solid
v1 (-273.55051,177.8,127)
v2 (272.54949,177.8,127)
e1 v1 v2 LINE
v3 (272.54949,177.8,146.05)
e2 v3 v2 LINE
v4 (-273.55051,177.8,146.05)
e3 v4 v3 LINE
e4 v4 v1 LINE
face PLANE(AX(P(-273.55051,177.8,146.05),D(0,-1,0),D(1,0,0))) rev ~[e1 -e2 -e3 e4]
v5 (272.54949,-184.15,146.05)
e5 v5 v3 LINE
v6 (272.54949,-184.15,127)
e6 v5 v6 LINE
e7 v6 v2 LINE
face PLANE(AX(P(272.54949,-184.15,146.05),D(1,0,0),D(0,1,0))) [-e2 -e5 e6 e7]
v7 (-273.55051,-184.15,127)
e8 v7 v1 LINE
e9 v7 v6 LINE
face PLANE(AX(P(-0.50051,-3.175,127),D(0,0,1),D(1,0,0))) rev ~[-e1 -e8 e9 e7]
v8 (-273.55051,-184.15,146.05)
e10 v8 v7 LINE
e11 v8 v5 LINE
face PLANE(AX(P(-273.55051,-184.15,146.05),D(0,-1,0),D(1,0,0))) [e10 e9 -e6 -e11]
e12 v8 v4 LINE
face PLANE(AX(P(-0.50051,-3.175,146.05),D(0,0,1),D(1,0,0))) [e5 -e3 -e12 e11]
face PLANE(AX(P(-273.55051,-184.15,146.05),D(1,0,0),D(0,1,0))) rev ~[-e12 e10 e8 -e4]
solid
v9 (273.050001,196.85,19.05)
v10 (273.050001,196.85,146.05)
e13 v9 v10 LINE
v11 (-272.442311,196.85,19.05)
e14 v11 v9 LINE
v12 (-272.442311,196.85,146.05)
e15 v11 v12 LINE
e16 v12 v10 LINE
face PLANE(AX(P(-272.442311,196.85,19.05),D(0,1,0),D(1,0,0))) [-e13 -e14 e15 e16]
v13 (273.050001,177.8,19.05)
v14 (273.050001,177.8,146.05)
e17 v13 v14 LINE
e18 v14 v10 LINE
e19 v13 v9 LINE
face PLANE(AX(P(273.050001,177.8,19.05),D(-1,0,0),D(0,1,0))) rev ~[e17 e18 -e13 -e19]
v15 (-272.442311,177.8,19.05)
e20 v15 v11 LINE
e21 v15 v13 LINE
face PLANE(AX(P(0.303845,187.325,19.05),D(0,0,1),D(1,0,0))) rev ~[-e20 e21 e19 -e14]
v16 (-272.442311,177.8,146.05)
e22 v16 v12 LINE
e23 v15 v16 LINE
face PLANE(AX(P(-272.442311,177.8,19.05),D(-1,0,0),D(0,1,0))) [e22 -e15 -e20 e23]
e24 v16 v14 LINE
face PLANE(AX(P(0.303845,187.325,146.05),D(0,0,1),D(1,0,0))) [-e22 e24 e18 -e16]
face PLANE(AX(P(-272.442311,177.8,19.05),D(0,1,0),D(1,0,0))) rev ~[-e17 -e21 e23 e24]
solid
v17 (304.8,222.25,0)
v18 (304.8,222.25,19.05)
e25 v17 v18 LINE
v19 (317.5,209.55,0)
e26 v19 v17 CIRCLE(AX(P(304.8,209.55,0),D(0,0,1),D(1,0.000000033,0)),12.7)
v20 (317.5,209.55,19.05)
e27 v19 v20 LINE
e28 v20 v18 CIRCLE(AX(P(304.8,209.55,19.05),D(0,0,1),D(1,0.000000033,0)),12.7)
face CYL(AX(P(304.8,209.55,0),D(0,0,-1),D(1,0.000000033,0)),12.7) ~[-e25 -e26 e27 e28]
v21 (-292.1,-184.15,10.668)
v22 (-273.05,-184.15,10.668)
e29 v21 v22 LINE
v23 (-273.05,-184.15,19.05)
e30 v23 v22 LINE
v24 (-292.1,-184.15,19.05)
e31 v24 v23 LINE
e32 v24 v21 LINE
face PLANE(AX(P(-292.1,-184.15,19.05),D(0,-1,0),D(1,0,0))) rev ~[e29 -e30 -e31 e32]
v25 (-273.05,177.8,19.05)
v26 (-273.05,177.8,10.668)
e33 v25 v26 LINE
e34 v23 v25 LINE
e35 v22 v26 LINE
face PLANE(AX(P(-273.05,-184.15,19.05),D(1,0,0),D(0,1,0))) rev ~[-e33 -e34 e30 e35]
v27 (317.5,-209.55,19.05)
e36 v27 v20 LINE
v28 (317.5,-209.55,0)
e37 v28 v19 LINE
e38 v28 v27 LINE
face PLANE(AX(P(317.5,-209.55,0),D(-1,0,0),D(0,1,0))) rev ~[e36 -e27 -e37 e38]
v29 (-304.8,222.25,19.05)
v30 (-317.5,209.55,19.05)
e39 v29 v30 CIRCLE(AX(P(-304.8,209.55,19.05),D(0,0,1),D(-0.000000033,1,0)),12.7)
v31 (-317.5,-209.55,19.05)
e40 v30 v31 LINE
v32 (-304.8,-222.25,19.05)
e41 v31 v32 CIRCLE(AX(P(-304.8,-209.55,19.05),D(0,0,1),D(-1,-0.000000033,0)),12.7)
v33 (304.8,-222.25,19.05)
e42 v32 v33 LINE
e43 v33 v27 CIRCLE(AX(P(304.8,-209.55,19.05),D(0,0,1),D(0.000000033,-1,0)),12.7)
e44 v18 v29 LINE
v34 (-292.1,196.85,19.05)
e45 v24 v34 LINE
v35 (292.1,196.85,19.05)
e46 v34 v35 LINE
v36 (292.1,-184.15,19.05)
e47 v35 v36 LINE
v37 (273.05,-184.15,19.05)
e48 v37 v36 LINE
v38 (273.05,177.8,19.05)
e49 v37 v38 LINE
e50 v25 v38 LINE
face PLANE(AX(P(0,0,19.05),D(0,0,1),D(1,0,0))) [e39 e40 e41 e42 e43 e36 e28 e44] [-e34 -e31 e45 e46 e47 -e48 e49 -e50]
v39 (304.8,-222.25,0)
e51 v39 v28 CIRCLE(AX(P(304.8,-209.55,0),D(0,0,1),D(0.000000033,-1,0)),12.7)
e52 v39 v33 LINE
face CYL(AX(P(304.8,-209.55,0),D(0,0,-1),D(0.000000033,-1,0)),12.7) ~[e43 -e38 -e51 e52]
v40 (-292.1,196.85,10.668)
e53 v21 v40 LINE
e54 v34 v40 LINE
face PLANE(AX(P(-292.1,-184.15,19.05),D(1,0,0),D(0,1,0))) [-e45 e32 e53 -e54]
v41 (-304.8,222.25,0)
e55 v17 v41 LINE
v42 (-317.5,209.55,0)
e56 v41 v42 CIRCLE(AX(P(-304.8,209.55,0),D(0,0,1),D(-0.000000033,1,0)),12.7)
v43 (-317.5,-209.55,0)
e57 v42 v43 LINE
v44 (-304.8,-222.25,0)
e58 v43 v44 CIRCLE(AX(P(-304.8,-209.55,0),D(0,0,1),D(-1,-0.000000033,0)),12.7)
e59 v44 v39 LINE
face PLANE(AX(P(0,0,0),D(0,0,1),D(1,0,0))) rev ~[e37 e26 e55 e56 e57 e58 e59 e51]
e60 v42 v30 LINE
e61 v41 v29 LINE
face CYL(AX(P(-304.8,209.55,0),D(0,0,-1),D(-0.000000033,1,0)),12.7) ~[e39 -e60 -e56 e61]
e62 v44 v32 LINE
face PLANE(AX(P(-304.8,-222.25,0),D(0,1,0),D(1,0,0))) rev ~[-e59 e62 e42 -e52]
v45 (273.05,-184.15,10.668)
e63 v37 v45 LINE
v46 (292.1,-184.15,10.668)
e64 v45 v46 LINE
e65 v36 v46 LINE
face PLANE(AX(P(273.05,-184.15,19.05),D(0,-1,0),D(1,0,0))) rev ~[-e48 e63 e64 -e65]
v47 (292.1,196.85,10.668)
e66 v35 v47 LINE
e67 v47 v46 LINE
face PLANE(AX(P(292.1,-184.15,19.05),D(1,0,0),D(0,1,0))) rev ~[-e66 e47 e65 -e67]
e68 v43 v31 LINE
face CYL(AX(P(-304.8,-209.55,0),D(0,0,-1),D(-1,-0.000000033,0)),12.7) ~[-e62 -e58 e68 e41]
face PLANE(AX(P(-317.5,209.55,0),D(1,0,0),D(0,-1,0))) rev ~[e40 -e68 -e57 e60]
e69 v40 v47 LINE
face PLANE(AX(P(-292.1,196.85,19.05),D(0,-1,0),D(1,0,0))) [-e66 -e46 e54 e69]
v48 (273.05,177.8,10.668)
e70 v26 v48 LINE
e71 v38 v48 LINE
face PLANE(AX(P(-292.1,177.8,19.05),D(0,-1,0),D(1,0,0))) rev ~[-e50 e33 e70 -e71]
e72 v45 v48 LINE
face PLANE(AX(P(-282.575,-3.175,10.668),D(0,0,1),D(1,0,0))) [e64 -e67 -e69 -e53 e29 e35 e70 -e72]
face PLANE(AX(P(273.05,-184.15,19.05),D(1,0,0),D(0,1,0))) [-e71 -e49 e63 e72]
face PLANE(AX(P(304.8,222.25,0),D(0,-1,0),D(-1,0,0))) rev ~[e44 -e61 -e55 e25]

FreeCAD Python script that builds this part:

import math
import FreeCAD as App
import Part
import Sketcher

V = App.Vector
Q = App.Units.Quantity

doc = App.newDocument("Part")
body = doc.addObject("PartDesign::Body", "Body")

# Sketch on XY plane
sketch1 = body.newObject("Sketcher::SketchObject", "Sketch")
sketch1.AttachmentSupport = (doc.getObject("XY_Plane"), [""])
sketch1.MapMode = "FlatFace"
sketch1.addGeometry([
    Part.LineSegment(V(305, 222, 0), V(-305, 222, 0)),  # 0
    Part.ArcOfCircle(Part.Circle(V(-305, 210, 0), V(0, 0, 1), 13), math.radians(90), math.radians(180)),  # 1
    Part.LineSegment(V(-318, 210, 0), V(-318, -210, 0)),  # 2
    Part.ArcOfCircle(Part.Circle(V(-305, -210, 0), V(0, 0, 1), 13), math.radians(-180), math.radians(-90)),  # 3
    Part.LineSegment(V(-305, -222, 0), V(305, -222, 0)),  # 4
    Part.ArcOfCircle(Part.Circle(V(305, -210, 0), V(0, 0, 1), 13), math.radians(-90), math.radians(0)),  # 5
    Part.LineSegment(V(318, -210, 0), V(318, 210, 0)),  # 6
    Part.ArcOfCircle(Part.Circle(V(305, 210, 0), V(0, 0, 1), 13), math.radians(0), math.radians(90)),  # 7
], False)
sketch1.addConstraint([
    Sketcher.Constraint("Tangent", 0, 2, 1, 1),
    Sketcher.Constraint("Tangent", 1, 2, 2, 1),
    Sketcher.Constraint("Tangent", 2, 2, 3, 1),
    Sketcher.Constraint("Tangent", 3, 2, 4, 1),
    Sketcher.Constraint("Tangent", 4, 2, 5, 1),
    Sketcher.Constraint("Tangent", 5, 2, 6, 1),
    Sketcher.Constraint("Tangent", 6, 2, 7, 1),
    Sketcher.Constraint("Tangent", 7, 2, 0, 1),
    Sketcher.Constraint("Horizontal", 0),
    Sketcher.Constraint("Vertical", 2),
    Sketcher.Constraint("Horizontal", 4),
    Sketcher.Constraint("Vertical", 6),
    Sketcher.Constraint("Equal", 1, 3),
    Sketcher.Constraint("Equal", 3, 5),
    Sketcher.Constraint("Equal", 5, 7),
    Sketcher.Constraint("Symmetric", 1, 3, 5, 3, -1, 1),
    Sketcher.Constraint("Radius", 1, Q("0.5 in")),
    Sketcher.Constraint("DistanceX", 0, 2, 0, 1, Q("24 in")),
    Sketcher.Constraint("DistanceY", 2, 2, 2, 1, Q("16.5 in")),
])
pad1 = body.newObject("PartDesign::Pad", "Pad")
pad1.Profile = sketch1
pad1.Length = Q("0.75 in")

# Sketch on XY plane
sketch2 = body.newObject("Sketcher::SketchObject", "Sketch001")
sketch2.AttachmentSupport = (doc.getObject("XY_Plane"), [""])
sketch2.MapMode = "FlatFace"
sketch2.AttachmentOffset = App.Placement(V(0, 0, 0.75 * 25.4), App.Rotation())
sketch2.addGeometry([
    Part.LineSegment(V(-292, 197, 0), V(-292, 178, 0)),
    Part.LineSegment(V(-292, 178, 0), V(292, 178, 0)),
    Part.LineSegment(V(292, 178, 0), V(292, 197, 0)),
    Part.LineSegment(V(292, 197, 0), V(-292, 197, 0)),
], False)
sketch2.addConstraint([
    Sketcher.Constraint("Coincident", 0, 2, 1, 1),
    Sketcher.Constraint("Coincident", 1, 2, 2, 1),
    Sketcher.Constraint("Coincident", 2, 2, 3, 1),
    Sketcher.Constraint("Coincident", 3, 2, 0, 1),
    Sketcher.Constraint("Vertical", 0),
    Sketcher.Constraint("Horizontal", 1),
    Sketcher.Constraint("Vertical", 2),
    Sketcher.Constraint("Horizontal", 3),
    Sketcher.Constraint("DistanceX", 1, 1, 1, 2, Q("23 in")),
    Sketcher.Constraint("DistanceY", -1, 1, 0, 2, Q("7 in")),
    Sketcher.Constraint("DistanceY", 0, 2, 0, 1, Q("0.75 in")),
    Sketcher.Constraint("DistanceX", 0, 2, -1, 1, Q("11.5 in")),
])
pocket1 = body.newObject("PartDesign::Pocket", "Pocket")
pocket1.Profile = sketch2
pocket1.Length = Q("0.33 in")

# Sketch on XY plane
sketch3 = body.newObject("Sketcher::SketchObject", "Sketch002")
sketch3.AttachmentSupport = (doc.getObject("XY_Plane"), [""])
sketch3.MapMode = "FlatFace"
sketch3.AttachmentOffset = App.Placement(V(0, 0, 0.75 * 25.4), App.Rotation())
sketch3.addGeometry([
    Part.LineSegment(V(-292, 178, 0), V(-292, -184, 0)),
    Part.LineSegment(V(-292, -184, 0), V(-273, -184, 0)),
    Part.LineSegment(V(-273, -184, 0), V(-273, 178, 0)),
    Part.LineSegment(V(-273, 178, 0), V(-292, 178, 0)),
], False)
sketch3.addConstraint([
    Sketcher.Constraint("Coincident", 0, 2, 1, 1),
    Sketcher.Constraint("Coincident", 1, 2, 2, 1),
    Sketcher.Constraint("Coincident", 2, 2, 3, 1),
    Sketcher.Constraint("Coincident", 3, 2, 0, 1),
    Sketcher.Constraint("Vertical", 0),
    Sketcher.Constraint("Horizontal", 1),
    Sketcher.Constraint("Vertical", 2),
    Sketcher.Constraint("Horizontal", 3),
    Sketcher.Constraint("DistanceY", -1, 1, 2, 2, Q("7 in")),
    Sketcher.Constraint("DistanceX", 1, 1, 1, 2, Q("0.75 in")),
    Sketcher.Constraint("DistanceY", 0, 2, 0, 1, Q("14.25 in")),
    Sketcher.Constraint("DistanceX", 0, 2, -1, 1, Q("11.5 in")),
])
pocket2 = body.newObject("PartDesign::Pocket", "Pocket001")
pocket2.Profile = sketch3
pocket2.Length = Q("0.33 in")

# Sketch on XY plane
sketch4 = body.newObject("Sketcher::SketchObject", "Sketch003")
sketch4.AttachmentSupport = (doc.getObject("XY_Plane"), [""])
sketch4.MapMode = "FlatFace"
sketch4.AttachmentOffset = App.Placement(V(0, 0, 0.75 * 25.4), App.Rotation())
sketch4.addGeometry([
    Part.LineSegment(V(273, 178, 0), V(273, -184, 0)),
    Part.LineSegment(V(273, -184, 0), V(292, -184, 0)),
    Part.LineSegment(V(292, -184, 0), V(292, 178, 0)),
    Part.LineSegment(V(292, 178, 0), V(273, 178, 0)),
], False)
sketch4.addConstraint([
    Sketcher.Constraint("Coincident", 0, 2, 1, 1),
    Sketcher.Constraint("Coincident", 1, 2, 2, 1),
    Sketcher.Constraint("Coincident", 2, 2, 3, 1),
    Sketcher.Constraint("Coincident", 3, 2, 0, 1),
    Sketcher.Constraint("Vertical", 0),
    Sketcher.Constraint("Horizontal", 1),
    Sketcher.Constraint("Vertical", 2),
    Sketcher.Constraint("Horizontal", 3),
    Sketcher.Constraint("DistanceY", -1, 1, 2, 2, Q("7 in")),
    Sketcher.Constraint("DistanceX", 1, 1, 1, 2, Q("0.75 in")),
    Sketcher.Constraint("DistanceY", 0, 2, 0, 1, Q("14.25 in")),
    Sketcher.Constraint("DistanceX", -1, 1, 1, 2, Q("11.5 in")),
])
pocket3 = body.newObject("PartDesign::Pocket", "Pocket002")
pocket3.Profile = sketch4
pocket3.Length = Q("0.33 in")
body2 = doc.addObject("PartDesign::Body", "Body001")

# Sketch on XY plane
sketch5 = body2.newObject("Sketcher::SketchObject", "Sketch004")
sketch5.AttachmentSupport = (doc.getObject("XY_Plane001"), [""])
sketch5.MapMode = "FlatFace"
sketch5.AttachmentOffset = App.Placement(V(0, 0, 0.75 * 25.4), App.Rotation())
sketch5.addGeometry([
    Part.LineSegment(V(-272, 197, 0), V(-272, 178, 0)),
    Part.LineSegment(V(-272, 178, 0), V(273, 178, 0)),
    Part.LineSegment(V(273, 178, 0), V(273, 197, 0)),
    Part.LineSegment(V(273, 197, 0), V(-272, 197, 0)),
], False)
sketch5.addConstraint([
    Sketcher.Constraint("Coincident", 0, 2, 1, 1),
    Sketcher.Constraint("Coincident", 1, 2, 2, 1),
    Sketcher.Constraint("Coincident", 2, 2, 3, 1),
    Sketcher.Constraint("Coincident", 3, 2, 0, 1),
    Sketcher.Constraint("Vertical", 0),
    Sketcher.Constraint("Horizontal", 1),
    Sketcher.Constraint("Vertical", 2),
    Sketcher.Constraint("Horizontal", 3),
    Sketcher.Constraint("DistanceY", -1, 1, 0, 2, Q("7 in")),
    Sketcher.Constraint("DistanceY", 0, 2, 0, 1, Q("0.75 in")),
    Sketcher.Constraint("DistanceX", -1, 1, 1, 2, Q("10.75 in")),
    Sketcher.Constraint("DistanceX", 1, 1, 1, 2, Q("545.492311 mm")),
])
pad2 = body2.newObject("PartDesign::Pad", "Pad001")
pad2.Profile = sketch5
pad2.Length = Q("5 in")
body3 = doc.addObject("PartDesign::Body", "Body002")

# Sketch on XY plane
sketch6 = body3.newObject("Sketcher::SketchObject", "Sketch005")
sketch6.AttachmentSupport = (doc.getObject("XY_Plane002"), [""])
sketch6.MapMode = "FlatFace"
sketch6.AttachmentOffset = App.Placement(V(0, 0, 5.75 * 25.4), App.Rotation())
sketch6.addGeometry([
    Part.LineSegment(V(-274, 178, 0), V(-274, -184, 0)),
    Part.LineSegment(V(-274, -184, 0), V(273, -184, 0)),
    Part.LineSegment(V(273, -184, 0), V(273, 178, 0)),
    Part.LineSegment(V(273, 178, 0), V(-274, 178, 0)),
], False)
sketch6.addConstraint([
    Sketcher.Constraint("Coincident", 0, 2, 1, 1),
    Sketcher.Constraint("Coincident", 1, 2, 2, 1),
    Sketcher.Constraint("Coincident", 2, 2, 3, 1),
    Sketcher.Constraint("Coincident", 3, 2, 0, 1),
    Sketcher.Constraint("Vertical", 0),
    Sketcher.Constraint("Horizontal", 1),
    Sketcher.Constraint("Vertical", 2),
    Sketcher.Constraint("Horizontal", 3),
    Sketcher.Constraint("DistanceX", 1, 1, 1, 2, Q("21.5 in")),
    Sketcher.Constraint("DistanceY", -1, 1, 2, 2, Q("7 in")),
    Sketcher.Constraint("DistanceY", 0, 2, 0, 1, Q("14.25 in")),
    Sketcher.Constraint("DistanceX", 0, 2, -1, 1, Q("273.55051 mm")),
])
pad3 = body3.newObject("PartDesign::Pad", "Pad002")
pad3.Profile = sketch6
pad3.Length = Q("0.75 in")
pad3.Reversed = True

doc.recompute()
